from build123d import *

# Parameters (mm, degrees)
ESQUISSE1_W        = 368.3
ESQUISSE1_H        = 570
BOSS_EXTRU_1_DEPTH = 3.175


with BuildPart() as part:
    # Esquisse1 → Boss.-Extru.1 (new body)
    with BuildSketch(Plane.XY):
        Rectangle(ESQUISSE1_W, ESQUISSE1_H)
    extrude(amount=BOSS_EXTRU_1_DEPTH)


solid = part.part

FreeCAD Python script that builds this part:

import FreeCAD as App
import Part
import Sketcher
from FreeCAD import Vector
Q = App.Units.Quantity

doc = App.newDocument("Part")
body = doc.addObject("PartDesign::Body", "Body")

sketch1 = doc.addObject("Sketcher::SketchObject", "Sketch")
body.addObject(sketch1)
sketch1.AttachmentSupport = (doc.XY_Plane, [""])
sketch1.MapMode = "FlatFace"
sketch1.addGeometry([
    Part.LineSegment(Vector(-184, 285, 0), Vector(-184, -285, 0)),
    Part.LineSegment(Vector(-184, -285, 0), Vector(184, -285, 0)),
    Part.LineSegment(Vector(184, -285, 0), Vector(184, 285, 0)),
    Part.LineSegment(Vector(184, 285, 0), Vector(-184, 285, 0)),
], False)
sketch1.addConstraint([
    Sketcher.Constraint("Coincident", 0, 2, 1, 1),
    Sketcher.Constraint("Coincident", 1, 2, 2, 1),
    Sketcher.Constraint("Coincident", 2, 2, 3, 1),
    Sketcher.Constraint("Coincident", 3, 2, 0, 1),
    Sketcher.Constraint("Vertical", 0),
    Sketcher.Constraint("Horizontal", 1),
    Sketcher.Constraint("Vertical", 2),
    Sketcher.Constraint("Horizontal", 3),
    Sketcher.Constraint("Symmetric", 0, 2, 2, 2, -1, 1),
    Sketcher.Constraint("DistanceX", 1, 1, 1, 2, Q("14.5 in")),
    Sketcher.Constraint("DistanceY", 0, 2, 0, 1, Q("570 mm")),
])
pad1 = doc.addObject("PartDesign::Pad", "Pad")
body.addObject(pad1)
pad1.Profile = sketch1
pad1.Length = Q("0.125 in")

doc.recompute()
